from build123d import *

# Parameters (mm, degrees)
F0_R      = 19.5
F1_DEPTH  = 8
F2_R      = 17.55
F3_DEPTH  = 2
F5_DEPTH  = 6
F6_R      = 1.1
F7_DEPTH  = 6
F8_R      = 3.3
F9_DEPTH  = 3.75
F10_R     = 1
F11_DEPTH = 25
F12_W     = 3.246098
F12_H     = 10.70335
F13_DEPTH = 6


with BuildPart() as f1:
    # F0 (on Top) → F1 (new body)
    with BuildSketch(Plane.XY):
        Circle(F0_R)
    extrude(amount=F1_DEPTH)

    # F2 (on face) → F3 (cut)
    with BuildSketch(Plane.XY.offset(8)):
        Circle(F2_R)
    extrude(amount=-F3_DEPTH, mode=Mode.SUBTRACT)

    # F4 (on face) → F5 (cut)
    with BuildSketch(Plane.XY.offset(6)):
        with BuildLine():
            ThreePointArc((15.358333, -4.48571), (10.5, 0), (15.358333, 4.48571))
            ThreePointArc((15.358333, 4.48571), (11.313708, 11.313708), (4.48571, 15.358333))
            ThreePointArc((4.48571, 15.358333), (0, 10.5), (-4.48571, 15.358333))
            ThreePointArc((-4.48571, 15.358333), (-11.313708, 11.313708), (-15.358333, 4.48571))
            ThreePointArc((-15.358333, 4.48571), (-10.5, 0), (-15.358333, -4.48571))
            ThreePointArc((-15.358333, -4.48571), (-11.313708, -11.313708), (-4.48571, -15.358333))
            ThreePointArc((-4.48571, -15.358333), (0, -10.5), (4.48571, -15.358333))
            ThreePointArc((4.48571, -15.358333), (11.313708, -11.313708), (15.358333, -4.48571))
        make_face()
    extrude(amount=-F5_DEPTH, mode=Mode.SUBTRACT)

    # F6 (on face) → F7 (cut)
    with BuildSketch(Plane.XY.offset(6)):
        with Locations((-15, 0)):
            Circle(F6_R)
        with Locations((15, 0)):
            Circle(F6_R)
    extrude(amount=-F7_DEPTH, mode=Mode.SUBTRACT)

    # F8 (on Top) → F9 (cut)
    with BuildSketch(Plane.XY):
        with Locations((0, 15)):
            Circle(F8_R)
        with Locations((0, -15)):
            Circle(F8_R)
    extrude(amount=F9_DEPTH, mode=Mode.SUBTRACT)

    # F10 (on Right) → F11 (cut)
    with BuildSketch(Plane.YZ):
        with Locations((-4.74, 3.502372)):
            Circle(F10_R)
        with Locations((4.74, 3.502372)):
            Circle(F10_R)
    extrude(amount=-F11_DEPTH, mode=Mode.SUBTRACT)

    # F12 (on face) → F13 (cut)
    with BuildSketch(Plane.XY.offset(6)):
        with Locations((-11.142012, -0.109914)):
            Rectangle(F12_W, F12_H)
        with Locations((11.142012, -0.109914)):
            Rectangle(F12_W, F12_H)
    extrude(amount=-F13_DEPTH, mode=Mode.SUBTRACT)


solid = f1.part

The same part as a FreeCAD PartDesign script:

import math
import FreeCAD as App
import Part
import Sketcher
from FreeCAD import Vector


def add_polygon(sketch, points):
    """Adds a closed chain of lines whose ends are joined by coincident constraints."""
    first, n = sketch.GeometryCount, len(points)
    for a, b in zip(points, points[1:] + points[:1]):
        sketch.addGeometry(Part.LineSegment(App.Vector(*a, 0), App.Vector(*b, 0)), False)
    for i in range(n):
        sketch.addConstraint(Sketcher.Constraint("Coincident", first + i, 2, first + (i + 1) % n, 1))

doc = App.newDocument("Part")
params = doc.addObject("Spreadsheet::Sheet", "Params")
for row, (alias, value) in enumerate([
    ("sketch1_diameter", "39 mm"),
    ("pad1_length", "8 mm"),
    ("sketch2_diameter", "35.1 mm"),
    ("pocket1_length", "2 mm"),
    ("sketch3_radius", "16.000002 mm"),
    ("sketch3_radius2", "4.5 mm"),
    ("pocket2_length", "6 mm"),
    ("sketch4_diameter", "2.2 mm"),
    ("pocket3_length", "6 mm"),
    ("sketch5_diameter", "6.6 mm"),
    ("pocket4_length", "3.75 mm"),
    ("sketch6_diameter", "2 mm"),
    ("pocket5_length", "25 mm"),
    ("pocket6_length", "6 mm"),
], start=1):
    params.set(f"A{row}", alias)
    params.set(f"B{row}", "=" + value)
    params.setAlias(f"B{row}", alias)

body = doc.addObject("PartDesign::Body", "Body")

# Sketch on XY plane
sketch1 = body.newObject("Sketcher::SketchObject", "Sketch")
sketch1.AttachmentSupport = (doc.getObject("XY_Plane"), [""])
sketch1.MapMode = "FlatFace"
sketch1.addGeometry(Part.Circle(Vector(0, 0, 0), Vector(0, 0, 1), 20), False)
sketch1.addConstraint(Sketcher.Constraint("Coincident", 0, 3, -1, 1))
sketch1.addConstraint(Sketcher.Constraint("Diameter", 0, 39.0))
sketch1.setExpression("Constraints[1]", "Params.sketch1_diameter")
pad1 = body.newObject("PartDesign::Pad", "Pad")
pad1.Profile = sketch1
pad1.setExpression("Length", "Params.pad1_length")

# Sketch on XY plane
sketch2 = body.newObject("Sketcher::SketchObject", "Sketch001")
sketch2.AttachmentSupport = (doc.getObject("XY_Plane"), [""])
sketch2.MapMode = "FlatFace"
sketch2.AttachmentOffset = App.Placement(Vector(0, 0, 8), App.Rotation())
sketch2.addGeometry(Part.Circle(Vector(0, 0, 0), Vector(0, 0, 1), 18), False)
sketch2.addConstraint(Sketcher.Constraint("Coincident", 0, 3, -1, 1))
sketch2.addConstraint(Sketcher.Constraint("Diameter", 0, 35.1))
sketch2.setExpression("Constraints[1]", "Params.sketch2_diameter")
pocket1 = body.newObject("PartDesign::Pocket", "Pocket")
pocket1.Profile = sketch2
pocket1.setExpression("Length", "Params.pocket1_length")

# Sketch on XY plane
sketch3 = body.newObject("Sketcher::SketchObject", "Sketch002")
sketch3.AttachmentSupport = (doc.getObject("XY_Plane"), [""])
sketch3.MapMode = "FlatFace"
sketch3.AttachmentOffset = App.Placement(Vector(0, 0, 6), App.Rotation())
sketch3.addGeometry(Part.ArcOfCircle(Part.Circle(Vector(15, 0, 0), Vector(0, 0, 1), 4.5), math.radians(85), math.radians(275)), False)
sketch3.addGeometry(Part.ArcOfCircle(Part.Circle(Vector(0, 0, 0), Vector(0, 0, 1), 16), math.radians(16), math.radians(74)), False)
sketch3.addGeometry(Part.ArcOfCircle(Part.Circle(Vector(0, 15, 0), Vector(0, 0, 1), 4.5), math.radians(175), math.radians(365)), False)
sketch3.addGeometry(Part.ArcOfCircle(Part.Circle(Vector(0, 0, 0), Vector(0, 0, 1), 16), math.radians(106), math.radians(164)), False)
sketch3.addGeometry(Part.ArcOfCircle(Part.Circle(Vector(-15, 0, 0), Vector(0, 0, 1), 4.5), math.radians(-95), math.radians(95)), False)
sketch3.addGeometry(Part.ArcOfCircle(Part.Circle(Vector(0, 0, 0), Vector(0, 0, 1), 16), math.radians(-164), math.radians(-106)), False)
sketch3.addGeometry(Part.ArcOfCircle(Part.Circle(Vector(0, -15, 0), Vector(0, 0, 1), 4.5), math.radians(-5), math.radians(185)), False)
sketch3.addGeometry(Part.ArcOfCircle(Part.Circle(Vector(0, 0, 0), Vector(0, 0, 1), 16), math.radians(-74), math.radians(-16)), False)
sketch3.addConstraint(Sketcher.Constraint("Coincident", 0, 1, 1, 1))
sketch3.addConstraint(Sketcher.Constraint("Coincident", 1, 2, 2, 2))
sketch3.addConstraint(Sketcher.Constraint("Coincident", 2, 1, 3, 1))
sketch3.addConstraint(Sketcher.Constraint("Coincident", 3, 2, 4, 2))
sketch3.addConstraint(Sketcher.Constraint("Coincident", 4, 1, 5, 1))
sketch3.addConstraint(Sketcher.Constraint("Coincident", 5, 2, 6, 2))
sketch3.addConstraint(Sketcher.Constraint("Coincident", 6, 1, 7, 1))
sketch3.addConstraint(Sketcher.Constraint("Coincident", 7, 2, 0, 2))
sketch3.addConstraint(Sketcher.Constraint("Coincident", 1, 3, -1, 1))
sketch3.addConstraint(Sketcher.Constraint("Coincident", 3, 3, -1, 1))
sketch3.addConstraint(Sketcher.Constraint("Coincident", 5, 3, -1, 1))
sketch3.addConstraint(Sketcher.Constraint("Coincident", 7, 3, -1, 1))
sketch3.addConstraint(Sketcher.Constraint("Equal", 0, 2))
sketch3.addConstraint(Sketcher.Constraint("Equal", 1, 3))
sketch3.addConstraint(Sketcher.Constraint("Equal", 2, 4))
sketch3.addConstraint(Sketcher.Constraint("Equal", 3, 5))
sketch3.addConstraint(Sketcher.Constraint("Equal", 4, 6))
sketch3.addConstraint(Sketcher.Constraint("Equal", 5, 7))
sketch3.addConstraint(Sketcher.Constraint("Symmetric", 0, 3, 4, 3, -1, 1))
sketch3.addConstraint(Sketcher.Constraint("Symmetric", 2, 3, 6, 3, -1, 1))
sketch3.addConstraint(Sketcher.Constraint("PointOnObject", 0, 3, -1))
sketch3.addConstraint(Sketcher.Constraint("PointOnObject", 2, 3, -2))
sketch3.addConstraint(Sketcher.Constraint("Radius", 1, 16.000002))
sketch3.addConstraint(Sketcher.Constraint("Radius", 0, 4.5))
sketch3.addConstraint(Sketcher.Constraint("DistanceX", -1, 1, 0, 3, 15.0))
sketch3.addConstraint(Sketcher.Constraint("DistanceY", -1, 1, 2, 3, 15.0))
sketch3.setExpression("Constraints[22]", "Params.sketch3_radius")
sketch3.setExpression("Constraints[23]", "Params.sketch3_radius2")
pocket2 = body.newObject("PartDesign::Pocket", "Pocket001")
pocket2.Profile = sketch3
pocket2.setExpression("Length", "Params.pocket2_length")

# Sketch on XY plane
sketch4 = body.newObject("Sketcher::SketchObject", "Sketch003")
sketch4.AttachmentSupport = (doc.getObject("XY_Plane"), [""])
sketch4.MapMode = "FlatFace"
sketch4.AttachmentOffset = App.Placement(Vector(0, 0, 6), App.Rotation())
sketch4.addGeometry(Part.Circle(Vector(-15, 0, 0), Vector(0, 0, 1), 1.1), False)
sketch4.addGeometry(Part.Circle(Vector(15, 0, 0), Vector(0, 0, 1), 1.1), False)
sketch4.addConstraint(Sketcher.Constraint("Equal", 0, 1))
sketch4.addConstraint(Sketcher.Constraint("Symmetric", 0, 3, 1, 3, -1, 1))
sketch4.addConstraint(Sketcher.Constraint("PointOnObject", 0, 3, -1))
sketch4.addConstraint(Sketcher.Constraint("Diameter", 0, 2.2))
sketch4.addConstraint(Sketcher.Constraint("DistanceX", 0, 3, -1, 1, 15.0))
sketch4.setExpression("Constraints[3]", "Params.sketch4_diameter")
pocket3 = body.newObject("PartDesign::Pocket", "Pocket002")
pocket3.Profile = sketch4
pocket3.setExpression("Length", "Params.pocket3_length")

# Sketch on XY plane
sketch5 = body.newObject("Sketcher::SketchObject", "Sketch004")
sketch5.AttachmentSupport = (doc.getObject("XY_Plane"), [""])
sketch5.MapMode = "FlatFace"
sketch5.addGeometry(Part.Circle(Vector(0, 15, 0), Vector(0, 0, 1), 3.3), False)
sketch5.addGeometry(Part.Circle(Vector(0, -15, 0), Vector(0, 0, 1), 3.3), False)
sketch5.addConstraint(Sketcher.Constraint("Equal", 0, 1))
sketch5.addConstraint(Sketcher.Constraint("Symmetric", 0, 3, 1, 3, -1, 1))
sketch5.addConstraint(Sketcher.Constraint("PointOnObject", 0, 3, -2))
sketch5.addConstraint(Sketcher.Constraint("Diameter", 0, 6.6))
sketch5.addConstraint(Sketcher.Constraint("DistanceY", -1, 1, 0, 3, 15.0))
sketch5.setExpression("Constraints[3]", "Params.sketch5_diameter")
pocket4 = body.newObject("PartDesign::Pocket", "Pocket003")
pocket4.Profile = sketch5
pocket4.setExpression("Length", "Params.pocket4_length")
pocket4.Reversed = True

# Sketch on YZ plane
sketch6 = body.newObject("Sketcher::SketchObject", "Sketch005")
sketch6.AttachmentSupport = (doc.getObject("YZ_Plane"), [""])
sketch6.MapMode = "FlatFace"
sketch6.addGeometry(Part.Circle(Vector(-4.7, 3.5, 0), Vector(0, 0, 1), 1), False)
sketch6.addGeometry(Part.Circle(Vector(4.7, 3.5, 0), Vector(0, 0, 1), 1), False)
sketch6.addConstraint(Sketcher.Constraint("Equal", 0, 1))
sketch6.addConstraint(Sketcher.Constraint("Symmetric", 0, 3, 1, 3, -2))
sketch6.addConstraint(Sketcher.Constraint("Diameter", 0, 2.0))
sketch6.addConstraint(Sketcher.Constraint("DistanceX", 0, 3, -1, 1, 4.74))
sketch6.addConstraint(Sketcher.Constraint("DistanceY", -1, 1, 0, 3, 3.502372))
sketch6.setExpression("Constraints[2]", "Params.sketch6_diameter")
pocket5 = body.newObject("PartDesign::Pocket", "Pocket004")
pocket5.Profile = sketch6
pocket5.setExpression("Length", "Params.pocket5_length")

# Sketch on XY plane
sketch7 = body.newObject("Sketcher::SketchObject", "Sketch006")
sketch7.AttachmentSupport = (doc.getObject("XY_Plane"), [""])
sketch7.MapMode = "FlatFace"
sketch7.AttachmentOffset = App.Placement(Vector(0, 0, 6), App.Rotation())
add_polygon(sketch7, [(-12.8, 5.2), (-12.8, -5.5), (-9.5, -5.5), (-9.5, 5.2)])  # lines 0-3
add_polygon(sketch7, [(9.5, 5.2), (9.5, -5.5), (12.8, -5.5), (12.8, 5.2)])  # lines 4-7
sketch7.addConstraint(Sketcher.Constraint("Vertical", 0))
sketch7.addConstraint(Sketcher.Constraint("Horizontal", 1))
sketch7.addConstraint(Sketcher.Constraint("Vertical", 2))
sketch7.addConstraint(Sketcher.Constraint("Horizontal", 3))
sketch7.addConstraint(Sketcher.Constraint("Vertical", 4))
sketch7.addConstraint(Sketcher.Constraint("Horizontal", 5))
sketch7.addConstraint(Sketcher.Constraint("Vertical", 6))
sketch7.addConstraint(Sketcher.Constraint("Horizontal", 7))
sketch7.addConstraint(Sketcher.Constraint("Symmetric", 1, 2, 4, 2, -2))
sketch7.addConstraint(Sketcher.Constraint("Symmetric", 3, 2, 6, 2, -2))
sketch7.addConstraint(Sketcher.Constraint("DistanceY", 0, 2, 0, 1, 10.70335))
sketch7.addConstraint(Sketcher.Constraint("DistanceX", 1, 1, 1, 2, 3.246098))
sketch7.addConstraint(Sketcher.Constraint("DistanceX", 0, 2, -1, 1, 12.765061))
sketch7.addConstraint(Sketcher.Constraint("DistanceY", 0, 2, -1, 1, 5.461589))
pocket6 = body.newObject("PartDesign::Pocket", "Pocket005")
pocket6.Profile = sketch7
pocket6.setExpression("Length", "Params.pocket6_length")

doc.recompute()
